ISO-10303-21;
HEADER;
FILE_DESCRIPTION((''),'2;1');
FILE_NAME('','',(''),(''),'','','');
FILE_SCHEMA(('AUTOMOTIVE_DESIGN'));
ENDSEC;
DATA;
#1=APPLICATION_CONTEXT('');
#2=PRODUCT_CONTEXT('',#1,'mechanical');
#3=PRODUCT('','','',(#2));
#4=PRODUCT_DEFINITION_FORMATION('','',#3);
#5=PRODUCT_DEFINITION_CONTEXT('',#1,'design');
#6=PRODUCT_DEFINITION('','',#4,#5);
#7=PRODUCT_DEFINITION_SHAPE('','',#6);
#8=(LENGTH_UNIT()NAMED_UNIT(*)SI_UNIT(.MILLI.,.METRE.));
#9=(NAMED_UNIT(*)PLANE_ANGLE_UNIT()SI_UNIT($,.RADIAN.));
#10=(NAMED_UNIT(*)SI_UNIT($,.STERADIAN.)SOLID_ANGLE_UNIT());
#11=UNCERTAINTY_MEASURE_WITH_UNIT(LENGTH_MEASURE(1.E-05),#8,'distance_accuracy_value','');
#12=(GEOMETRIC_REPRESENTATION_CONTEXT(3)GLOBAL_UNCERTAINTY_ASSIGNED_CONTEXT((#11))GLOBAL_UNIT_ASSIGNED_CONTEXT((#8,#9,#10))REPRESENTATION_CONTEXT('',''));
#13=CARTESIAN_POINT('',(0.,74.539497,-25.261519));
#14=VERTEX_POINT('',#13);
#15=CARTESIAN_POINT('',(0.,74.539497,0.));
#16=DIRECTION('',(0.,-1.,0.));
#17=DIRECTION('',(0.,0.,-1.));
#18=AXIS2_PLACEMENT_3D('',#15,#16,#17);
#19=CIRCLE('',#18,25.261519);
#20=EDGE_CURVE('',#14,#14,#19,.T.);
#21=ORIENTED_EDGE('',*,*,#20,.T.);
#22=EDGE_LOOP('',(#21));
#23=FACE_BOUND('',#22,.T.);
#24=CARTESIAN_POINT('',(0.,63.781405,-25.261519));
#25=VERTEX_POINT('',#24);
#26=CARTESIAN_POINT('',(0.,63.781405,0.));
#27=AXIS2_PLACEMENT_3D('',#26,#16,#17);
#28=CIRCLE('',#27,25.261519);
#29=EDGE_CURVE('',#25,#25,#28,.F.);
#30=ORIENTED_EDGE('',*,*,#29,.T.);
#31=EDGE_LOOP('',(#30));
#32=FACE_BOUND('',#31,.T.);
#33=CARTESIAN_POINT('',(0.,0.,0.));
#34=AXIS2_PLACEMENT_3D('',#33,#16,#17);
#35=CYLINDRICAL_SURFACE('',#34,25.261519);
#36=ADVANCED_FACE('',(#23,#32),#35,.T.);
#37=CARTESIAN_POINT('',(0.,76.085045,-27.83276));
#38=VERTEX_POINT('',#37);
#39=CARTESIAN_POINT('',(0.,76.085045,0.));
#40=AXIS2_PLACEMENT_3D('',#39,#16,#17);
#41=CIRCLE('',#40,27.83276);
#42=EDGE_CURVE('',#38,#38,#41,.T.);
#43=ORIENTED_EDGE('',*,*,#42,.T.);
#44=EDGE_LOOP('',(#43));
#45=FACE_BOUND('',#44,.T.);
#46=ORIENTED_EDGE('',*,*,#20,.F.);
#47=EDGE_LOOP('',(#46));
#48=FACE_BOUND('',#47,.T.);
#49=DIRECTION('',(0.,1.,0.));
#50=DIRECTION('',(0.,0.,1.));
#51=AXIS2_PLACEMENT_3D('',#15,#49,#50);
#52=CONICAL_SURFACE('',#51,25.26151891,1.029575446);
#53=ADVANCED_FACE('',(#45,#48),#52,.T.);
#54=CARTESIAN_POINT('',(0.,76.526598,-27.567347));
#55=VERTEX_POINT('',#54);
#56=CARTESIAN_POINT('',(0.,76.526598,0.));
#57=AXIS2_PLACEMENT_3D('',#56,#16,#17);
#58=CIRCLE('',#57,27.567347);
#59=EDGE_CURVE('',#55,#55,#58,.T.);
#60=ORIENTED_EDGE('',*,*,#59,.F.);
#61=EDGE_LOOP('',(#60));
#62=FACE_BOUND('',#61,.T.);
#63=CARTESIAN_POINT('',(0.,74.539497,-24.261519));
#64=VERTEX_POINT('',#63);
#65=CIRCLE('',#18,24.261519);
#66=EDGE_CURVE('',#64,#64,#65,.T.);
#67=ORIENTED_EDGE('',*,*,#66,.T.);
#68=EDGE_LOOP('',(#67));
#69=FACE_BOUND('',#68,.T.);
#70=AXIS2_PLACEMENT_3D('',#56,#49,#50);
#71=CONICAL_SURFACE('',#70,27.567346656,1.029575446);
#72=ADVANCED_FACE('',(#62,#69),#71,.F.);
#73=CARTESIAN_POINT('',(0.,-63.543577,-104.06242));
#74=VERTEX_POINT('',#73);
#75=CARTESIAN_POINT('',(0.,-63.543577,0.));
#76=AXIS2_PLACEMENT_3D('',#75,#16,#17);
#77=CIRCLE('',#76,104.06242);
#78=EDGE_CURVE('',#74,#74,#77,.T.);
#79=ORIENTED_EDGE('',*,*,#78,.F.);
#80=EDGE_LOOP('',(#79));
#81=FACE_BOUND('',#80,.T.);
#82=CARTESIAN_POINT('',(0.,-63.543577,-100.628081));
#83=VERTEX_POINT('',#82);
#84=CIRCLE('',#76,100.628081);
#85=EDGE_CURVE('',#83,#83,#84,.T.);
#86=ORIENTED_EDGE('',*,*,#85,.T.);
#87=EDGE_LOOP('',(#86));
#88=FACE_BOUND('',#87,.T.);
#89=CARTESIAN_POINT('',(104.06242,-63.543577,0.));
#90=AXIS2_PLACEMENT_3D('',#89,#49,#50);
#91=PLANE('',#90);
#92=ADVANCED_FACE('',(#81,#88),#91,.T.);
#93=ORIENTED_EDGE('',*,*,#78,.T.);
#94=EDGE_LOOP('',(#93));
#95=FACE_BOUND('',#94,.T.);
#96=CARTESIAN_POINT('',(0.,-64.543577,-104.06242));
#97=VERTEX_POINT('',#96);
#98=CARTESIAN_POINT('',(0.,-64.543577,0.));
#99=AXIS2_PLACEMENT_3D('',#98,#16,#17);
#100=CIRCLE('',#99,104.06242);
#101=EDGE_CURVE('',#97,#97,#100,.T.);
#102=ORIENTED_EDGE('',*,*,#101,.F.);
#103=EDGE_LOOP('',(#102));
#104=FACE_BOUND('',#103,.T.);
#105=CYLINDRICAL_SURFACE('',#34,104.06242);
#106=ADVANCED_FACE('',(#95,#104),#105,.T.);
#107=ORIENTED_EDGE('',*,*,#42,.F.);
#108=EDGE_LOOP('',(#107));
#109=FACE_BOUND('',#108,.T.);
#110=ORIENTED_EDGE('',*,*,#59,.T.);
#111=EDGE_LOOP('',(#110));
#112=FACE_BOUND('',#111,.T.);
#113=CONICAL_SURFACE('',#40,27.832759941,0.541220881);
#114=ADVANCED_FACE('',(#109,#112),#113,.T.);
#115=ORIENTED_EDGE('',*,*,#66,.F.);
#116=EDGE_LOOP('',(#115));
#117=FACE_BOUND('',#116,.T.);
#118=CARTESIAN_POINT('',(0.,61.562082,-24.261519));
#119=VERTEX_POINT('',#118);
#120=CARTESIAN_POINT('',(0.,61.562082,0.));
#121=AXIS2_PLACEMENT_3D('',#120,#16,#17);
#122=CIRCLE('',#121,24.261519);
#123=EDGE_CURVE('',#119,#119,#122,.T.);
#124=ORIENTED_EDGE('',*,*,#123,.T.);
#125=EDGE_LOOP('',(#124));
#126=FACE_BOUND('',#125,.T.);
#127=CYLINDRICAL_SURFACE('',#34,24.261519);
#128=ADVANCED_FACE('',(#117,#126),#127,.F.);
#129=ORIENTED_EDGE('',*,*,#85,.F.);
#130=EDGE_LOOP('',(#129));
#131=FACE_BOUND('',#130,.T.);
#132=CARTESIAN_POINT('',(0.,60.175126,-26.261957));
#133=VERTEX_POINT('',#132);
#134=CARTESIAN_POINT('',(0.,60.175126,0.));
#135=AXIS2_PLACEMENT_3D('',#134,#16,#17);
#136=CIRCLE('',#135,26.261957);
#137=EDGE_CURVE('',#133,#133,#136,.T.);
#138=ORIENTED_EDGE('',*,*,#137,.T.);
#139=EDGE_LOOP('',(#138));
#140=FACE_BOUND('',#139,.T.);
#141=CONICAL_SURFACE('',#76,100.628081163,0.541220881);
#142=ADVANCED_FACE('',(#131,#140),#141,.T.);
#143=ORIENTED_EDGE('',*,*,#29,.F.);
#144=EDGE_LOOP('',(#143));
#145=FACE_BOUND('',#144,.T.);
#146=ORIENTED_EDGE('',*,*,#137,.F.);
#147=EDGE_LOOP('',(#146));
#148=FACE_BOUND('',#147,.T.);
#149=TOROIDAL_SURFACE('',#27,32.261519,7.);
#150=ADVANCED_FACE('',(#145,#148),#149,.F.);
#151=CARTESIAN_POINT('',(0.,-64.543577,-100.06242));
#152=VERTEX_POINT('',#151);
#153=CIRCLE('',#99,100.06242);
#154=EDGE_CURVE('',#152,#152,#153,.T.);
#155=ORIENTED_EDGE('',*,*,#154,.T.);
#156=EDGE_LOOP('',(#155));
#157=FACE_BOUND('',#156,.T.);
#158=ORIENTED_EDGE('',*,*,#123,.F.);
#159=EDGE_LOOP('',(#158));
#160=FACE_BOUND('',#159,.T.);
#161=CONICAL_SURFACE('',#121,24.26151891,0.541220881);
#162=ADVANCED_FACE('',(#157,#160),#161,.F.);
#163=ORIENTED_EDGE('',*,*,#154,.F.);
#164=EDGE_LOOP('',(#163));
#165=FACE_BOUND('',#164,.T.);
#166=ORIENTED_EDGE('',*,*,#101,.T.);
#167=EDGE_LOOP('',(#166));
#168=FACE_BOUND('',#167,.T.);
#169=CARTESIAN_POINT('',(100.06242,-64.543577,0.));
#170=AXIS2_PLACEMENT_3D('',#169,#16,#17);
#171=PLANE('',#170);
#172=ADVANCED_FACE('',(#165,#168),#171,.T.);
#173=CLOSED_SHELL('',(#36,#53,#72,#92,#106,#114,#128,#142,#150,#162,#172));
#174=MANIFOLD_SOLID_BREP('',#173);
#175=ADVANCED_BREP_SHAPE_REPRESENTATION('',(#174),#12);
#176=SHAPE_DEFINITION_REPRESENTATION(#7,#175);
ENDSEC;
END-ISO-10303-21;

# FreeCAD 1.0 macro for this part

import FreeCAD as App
import Part
import Sketcher
from FreeCAD import Vector


def edges_at(feature, points):
    """Names of the edges that pass closest to the given points."""
    edges = feature.Shape.Edges
    near = lambda p: min(range(len(edges)), key=lambda i: edges[i].distToShape(Part.Vertex(*p))[0])
    return sorted({f"Edge{near(p) + 1}" for p in points})

doc = App.newDocument("Part")
params = doc.addObject("Spreadsheet::Sheet", "Params")
for row, (alias, value) in enumerate([
    ("sketch1_width", "4 mm"),
    ("sketch1_height", "1 mm"),
    ("sketch1_length", "3 mm"),
    ("sketch1_height2", "12.7 mm"),
    ("revolution_angle", "360 deg"),
    ("fillet_radius", "7 mm"),
], start=1):
    params.set(f"A{row}", alias)
    params.set(f"B{row}", "=" + value)
    params.setAlias(f"B{row}", alias)

body = doc.addObject("PartDesign::Body", "Body")

# Sketch on XY plane
sketch1 = body.newObject("Sketcher::SketchObject", "Sketch")
sketch1.AttachmentSupport = (doc.getObject("XY_Plane"), [""])
sketch1.MapMode = "FlatFace"
sketch1.addGeometry([
    Part.LineSegment(Vector(25.3, 61.8, 0), Vector(25.3, 74.5, 0)),  # 0
    Part.LineSegment(Vector(25.3, 74.5, 0), Vector(27.8, 76.1, 0)),  # 1
    Part.LineSegment(Vector(27.8, 76.1, 0), Vector(27.6, 76.5, 0)),  # 2
    Part.LineSegment(Vector(27.6, 76.5, 0), Vector(24.3, 74.5, 0)),  # 3
    Part.LineSegment(Vector(24.3, 74.5, 0), Vector(24.3, 61.6, 0)),  # 4
    Part.LineSegment(Vector(24.3, 61.6, 0), Vector(100.1, -64.5, 0)),  # 5
    Part.LineSegment(Vector(100.1, -64.5, 0), Vector(104.1, -64.5, 0)),  # 6
    Part.LineSegment(Vector(104.1, -64.5, 0), Vector(104.1, -63.5, 0)),  # 7
    Part.LineSegment(Vector(104.1, -63.5, 0), Vector(100.6, -63.5, 0)),  # 8
    Part.LineSegment(Vector(100.6, -63.5, 0), Vector(25.3, 61.8, 0)),  # 9
], False)
sketch1.addConstraint([
    Sketcher.Constraint("Coincident", 0, 2, 1, 1),
    Sketcher.Constraint("Coincident", 1, 2, 2, 1),
    Sketcher.Constraint("Coincident", 2, 2, 3, 1),
    Sketcher.Constraint("Coincident", 3, 2, 4, 1),
    Sketcher.Constraint("Coincident", 4, 2, 5, 1),
    Sketcher.Constraint("Coincident", 5, 2, 6, 1),
    Sketcher.Constraint("Coincident", 6, 2, 7, 1),
    Sketcher.Constraint("Coincident", 7, 2, 8, 1),
    Sketcher.Constraint("Coincident", 8, 2, 9, 1),
    Sketcher.Constraint("Coincident", 9, 2, 0, 1),
    Sketcher.Constraint("Vertical", 0),
    Sketcher.Constraint("Vertical", 4),
    Sketcher.Constraint("Horizontal", 6),
    Sketcher.Constraint("Vertical", 7),
    Sketcher.Constraint("Horizontal", 8),
    Sketcher.Constraint("Perpendicular", 1, 2),
    Sketcher.Constraint("Perpendicular", 2, 3),
    Sketcher.Constraint("Perpendicular", 3, 5),
    Sketcher.Constraint("Parallel", 5, 9),
    Sketcher.Constraint("Horizontal", 0, 2, 3, 2),
    Sketcher.Constraint("DistanceX", 6, 1, 6, 2, 4.0),
    Sketcher.Constraint("DistanceY", 7, 1, 7, 2, 1.0),
    Sketcher.Constraint("Distance", 1, 3.0),
    Sketcher.Constraint("DistanceY", 0, 1, 0, 2, 12.7),
    Sketcher.Constraint("DistanceX", 3, 2, 0, 2, 1.0),
    Sketcher.Constraint("Distance", 5, 147.133999),
    Sketcher.Constraint("DistanceX", 8, 2, 8, 1, 3.434339),
    Sketcher.Constraint("DistanceY", -1, 1, 2, 2, 76.526598),
    Sketcher.Constraint("DistanceY", 0, 2, 2, 2, 1.987101),
    Sketcher.Constraint("DistanceX", -1, 1, 0, 2, 25.261519),
])
sketch1.setExpression("Constraints[20]", "Params.sketch1_width")
sketch1.setExpression("Constraints[21]", "Params.sketch1_height")
sketch1.setExpression("Constraints[22]", "Params.sketch1_length")
sketch1.setExpression("Constraints[23]", "Params.sketch1_height2")
revolution = body.newObject("PartDesign::Revolution", "Revolution")
revolution.Profile = sketch1
revolution.ReferenceAxis = (sketch1, ["V_Axis"])
revolution.setExpression("Angle", "Params.revolution_angle")
doc.recompute()

fillet = body.newObject("PartDesign::Fillet", "Fillet")
fillet.Base = (revolution, edges_at(revolution, [(-25.262, 61.839, 0)]))
fillet.setExpression("Radius", "Params.fillet_radius")

doc.recompute()
